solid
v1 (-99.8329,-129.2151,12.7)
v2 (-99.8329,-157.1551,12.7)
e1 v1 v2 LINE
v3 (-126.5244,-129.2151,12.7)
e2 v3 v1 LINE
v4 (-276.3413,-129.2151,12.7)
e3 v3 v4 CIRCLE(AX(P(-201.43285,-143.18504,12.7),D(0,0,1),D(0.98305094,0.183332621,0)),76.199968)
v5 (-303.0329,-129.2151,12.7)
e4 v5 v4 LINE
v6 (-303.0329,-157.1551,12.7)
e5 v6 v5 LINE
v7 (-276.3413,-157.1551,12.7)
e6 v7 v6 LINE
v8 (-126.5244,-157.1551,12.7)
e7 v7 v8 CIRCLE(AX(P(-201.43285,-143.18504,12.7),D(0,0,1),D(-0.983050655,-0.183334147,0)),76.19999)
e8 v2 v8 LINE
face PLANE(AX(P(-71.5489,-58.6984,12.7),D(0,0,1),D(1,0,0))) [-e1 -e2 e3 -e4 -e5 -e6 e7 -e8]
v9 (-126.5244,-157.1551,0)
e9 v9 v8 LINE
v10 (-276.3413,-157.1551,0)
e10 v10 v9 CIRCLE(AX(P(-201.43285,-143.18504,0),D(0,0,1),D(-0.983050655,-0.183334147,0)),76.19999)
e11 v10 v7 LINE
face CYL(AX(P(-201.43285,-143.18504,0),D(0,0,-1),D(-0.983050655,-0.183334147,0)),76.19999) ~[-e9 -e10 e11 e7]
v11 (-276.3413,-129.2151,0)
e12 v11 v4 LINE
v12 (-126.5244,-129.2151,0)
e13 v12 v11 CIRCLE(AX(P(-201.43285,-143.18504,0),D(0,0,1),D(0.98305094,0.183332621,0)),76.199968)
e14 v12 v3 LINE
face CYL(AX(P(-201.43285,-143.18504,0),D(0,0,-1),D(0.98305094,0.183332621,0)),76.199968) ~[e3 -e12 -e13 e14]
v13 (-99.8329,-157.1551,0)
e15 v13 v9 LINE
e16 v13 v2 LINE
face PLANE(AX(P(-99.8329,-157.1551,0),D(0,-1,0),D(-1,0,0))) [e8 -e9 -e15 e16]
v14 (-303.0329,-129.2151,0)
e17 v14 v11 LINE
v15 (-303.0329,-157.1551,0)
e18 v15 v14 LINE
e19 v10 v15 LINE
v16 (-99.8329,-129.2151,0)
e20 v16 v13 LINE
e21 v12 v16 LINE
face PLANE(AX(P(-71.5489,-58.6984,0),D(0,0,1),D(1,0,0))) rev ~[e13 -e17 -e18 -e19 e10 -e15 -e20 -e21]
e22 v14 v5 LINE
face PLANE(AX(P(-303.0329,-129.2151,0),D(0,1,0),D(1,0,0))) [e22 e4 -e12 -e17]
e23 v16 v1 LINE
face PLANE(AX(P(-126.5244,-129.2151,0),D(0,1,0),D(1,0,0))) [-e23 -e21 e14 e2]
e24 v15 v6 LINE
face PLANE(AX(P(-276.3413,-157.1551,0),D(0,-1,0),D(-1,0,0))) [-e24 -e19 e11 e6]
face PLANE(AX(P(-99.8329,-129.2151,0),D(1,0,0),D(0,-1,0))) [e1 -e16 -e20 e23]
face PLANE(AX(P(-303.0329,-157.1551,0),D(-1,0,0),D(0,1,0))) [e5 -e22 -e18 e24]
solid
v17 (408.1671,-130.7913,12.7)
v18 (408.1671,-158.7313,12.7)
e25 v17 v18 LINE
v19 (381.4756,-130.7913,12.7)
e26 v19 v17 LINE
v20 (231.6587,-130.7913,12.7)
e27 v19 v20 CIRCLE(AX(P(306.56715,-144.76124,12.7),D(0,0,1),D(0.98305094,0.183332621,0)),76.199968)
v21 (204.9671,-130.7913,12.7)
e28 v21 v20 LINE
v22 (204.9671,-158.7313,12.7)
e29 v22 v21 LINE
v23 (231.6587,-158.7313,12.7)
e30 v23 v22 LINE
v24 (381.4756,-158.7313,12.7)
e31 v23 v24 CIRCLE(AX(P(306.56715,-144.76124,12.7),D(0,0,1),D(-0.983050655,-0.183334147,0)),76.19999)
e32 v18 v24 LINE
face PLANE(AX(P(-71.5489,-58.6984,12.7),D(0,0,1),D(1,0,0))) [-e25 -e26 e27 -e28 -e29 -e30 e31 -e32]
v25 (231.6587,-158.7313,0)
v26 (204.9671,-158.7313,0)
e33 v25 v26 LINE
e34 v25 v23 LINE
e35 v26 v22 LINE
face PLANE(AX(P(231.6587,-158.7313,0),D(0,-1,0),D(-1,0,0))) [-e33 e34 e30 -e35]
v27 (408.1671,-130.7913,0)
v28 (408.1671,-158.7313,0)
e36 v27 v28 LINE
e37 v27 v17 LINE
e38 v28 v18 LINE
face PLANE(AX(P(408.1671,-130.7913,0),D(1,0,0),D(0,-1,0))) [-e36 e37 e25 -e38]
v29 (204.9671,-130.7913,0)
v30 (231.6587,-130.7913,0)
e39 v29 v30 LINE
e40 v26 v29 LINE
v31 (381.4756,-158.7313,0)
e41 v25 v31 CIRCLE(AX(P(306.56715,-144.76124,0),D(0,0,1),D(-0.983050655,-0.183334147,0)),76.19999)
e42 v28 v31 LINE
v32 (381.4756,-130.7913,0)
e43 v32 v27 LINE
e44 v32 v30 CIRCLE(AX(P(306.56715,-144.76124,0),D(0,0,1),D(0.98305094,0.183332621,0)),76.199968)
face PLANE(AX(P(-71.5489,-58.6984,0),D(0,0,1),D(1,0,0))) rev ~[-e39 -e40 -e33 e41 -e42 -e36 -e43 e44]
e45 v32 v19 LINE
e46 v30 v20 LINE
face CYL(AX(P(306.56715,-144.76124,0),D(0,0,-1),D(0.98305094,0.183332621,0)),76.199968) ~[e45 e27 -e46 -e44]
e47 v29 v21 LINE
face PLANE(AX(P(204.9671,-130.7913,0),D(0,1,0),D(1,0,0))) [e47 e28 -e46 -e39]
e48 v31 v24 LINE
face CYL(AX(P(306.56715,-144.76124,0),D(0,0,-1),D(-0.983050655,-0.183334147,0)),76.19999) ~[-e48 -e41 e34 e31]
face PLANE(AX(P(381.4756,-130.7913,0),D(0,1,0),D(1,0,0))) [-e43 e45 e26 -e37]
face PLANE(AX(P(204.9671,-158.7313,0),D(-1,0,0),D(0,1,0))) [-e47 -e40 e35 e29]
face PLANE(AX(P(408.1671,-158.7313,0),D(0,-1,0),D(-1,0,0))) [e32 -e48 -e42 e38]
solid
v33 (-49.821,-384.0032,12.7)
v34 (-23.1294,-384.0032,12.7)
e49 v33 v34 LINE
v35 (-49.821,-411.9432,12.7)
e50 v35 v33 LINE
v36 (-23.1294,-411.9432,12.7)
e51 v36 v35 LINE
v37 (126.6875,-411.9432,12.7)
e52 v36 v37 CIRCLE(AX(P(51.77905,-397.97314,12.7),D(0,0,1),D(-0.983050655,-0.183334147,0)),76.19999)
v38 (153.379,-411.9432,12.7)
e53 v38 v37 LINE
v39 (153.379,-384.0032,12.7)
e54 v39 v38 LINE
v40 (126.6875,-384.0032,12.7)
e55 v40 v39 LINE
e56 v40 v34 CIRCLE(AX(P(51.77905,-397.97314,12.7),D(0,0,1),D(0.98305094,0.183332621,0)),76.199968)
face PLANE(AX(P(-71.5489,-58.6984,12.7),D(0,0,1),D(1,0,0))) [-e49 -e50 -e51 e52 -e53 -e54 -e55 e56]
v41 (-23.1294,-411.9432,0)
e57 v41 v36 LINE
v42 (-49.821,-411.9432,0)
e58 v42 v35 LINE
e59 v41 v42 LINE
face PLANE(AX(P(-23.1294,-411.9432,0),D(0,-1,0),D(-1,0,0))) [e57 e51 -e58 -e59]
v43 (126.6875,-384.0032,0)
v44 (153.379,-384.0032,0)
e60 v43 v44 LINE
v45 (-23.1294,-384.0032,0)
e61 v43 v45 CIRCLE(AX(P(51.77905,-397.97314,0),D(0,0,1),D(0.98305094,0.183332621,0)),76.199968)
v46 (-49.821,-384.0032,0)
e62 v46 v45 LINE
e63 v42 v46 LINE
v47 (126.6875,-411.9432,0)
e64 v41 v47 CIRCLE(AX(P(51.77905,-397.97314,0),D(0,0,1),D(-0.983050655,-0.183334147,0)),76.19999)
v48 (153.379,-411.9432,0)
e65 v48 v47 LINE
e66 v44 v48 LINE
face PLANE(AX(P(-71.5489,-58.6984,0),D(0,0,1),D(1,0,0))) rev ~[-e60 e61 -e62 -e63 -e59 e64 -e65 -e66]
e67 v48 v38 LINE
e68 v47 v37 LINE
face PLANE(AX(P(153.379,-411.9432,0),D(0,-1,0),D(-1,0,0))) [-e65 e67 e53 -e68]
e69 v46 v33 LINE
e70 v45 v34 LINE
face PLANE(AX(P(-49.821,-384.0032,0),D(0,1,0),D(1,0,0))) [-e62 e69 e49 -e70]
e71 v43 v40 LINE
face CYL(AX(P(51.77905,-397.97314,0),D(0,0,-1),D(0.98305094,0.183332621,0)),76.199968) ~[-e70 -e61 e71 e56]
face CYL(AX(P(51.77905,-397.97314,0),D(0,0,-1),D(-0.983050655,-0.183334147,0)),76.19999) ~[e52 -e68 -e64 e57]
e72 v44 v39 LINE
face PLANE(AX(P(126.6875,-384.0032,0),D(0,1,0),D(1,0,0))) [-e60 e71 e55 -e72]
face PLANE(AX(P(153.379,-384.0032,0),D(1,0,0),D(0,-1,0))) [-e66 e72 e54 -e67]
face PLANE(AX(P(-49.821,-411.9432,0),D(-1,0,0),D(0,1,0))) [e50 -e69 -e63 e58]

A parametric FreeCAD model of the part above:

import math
import FreeCAD as App
import Part
import Sketcher
Q = App.Units.Quantity

doc = App.newDocument("Part")
body = doc.addObject("PartDesign::Body", "Body")
body.AllowCompound = True

sketch1 = body.newObject("Sketcher::SketchObject", "Sketch")
sketch1.AttachmentSupport = (doc.getObject("XY_Plane"), [""])
sketch1.MapMode = "FlatFace"
sketch1.addGeometry([
    Part.LineSegment(App.Vector(408.1671, -130.7913, 0), App.Vector(381.4756, -130.7913, 0)),
    Part.ArcOfCircle(Part.Circle(App.Vector(306.5671, -144.7613, 0), App.Vector(0, 0, 1), 76.19993), math.radians(10.563974), math.radians(169.436013)),
    Part.LineSegment(App.Vector(231.6587, -130.7913, 0), App.Vector(204.9671, -130.7913, 0)),
    Part.LineSegment(App.Vector(204.9671, -130.7913, 0), App.Vector(204.9671, -158.7313, 0)),
    Part.LineSegment(App.Vector(204.9671, -158.7313, 0), App.Vector(231.6587, -158.7313, 0)),
    Part.ArcOfCircle(Part.Circle(App.Vector(306.5671, -144.7613, 0), App.Vector(0, 0, 1), 76.200028), math.radians(-169.436013), math.radians(-10.563974)),
    Part.LineSegment(App.Vector(381.4756, -158.7313, 0), App.Vector(408.1671, -158.7313, 0)),
    Part.LineSegment(App.Vector(408.1671, -158.7313, 0), App.Vector(408.1671, -130.7913, 0)),
    Part.LineSegment(App.Vector(153.379, -384.0032, 0), App.Vector(126.6875, -384.0032, 0)),
    Part.ArcOfCircle(Part.Circle(App.Vector(51.779, -397.9732, 0), App.Vector(0, 0, 1), 76.19993), math.radians(10.563974), math.radians(169.436013)),
    Part.LineSegment(App.Vector(-23.1294, -384.0032, 0), App.Vector(-49.821, -384.0032, 0)),
    Part.LineSegment(App.Vector(-49.821, -384.0032, 0), App.Vector(-49.821, -411.9432, 0)),
    Part.LineSegment(App.Vector(-49.821, -411.9432, 0), App.Vector(-23.1294, -411.9432, 0)),
    Part.ArcOfCircle(Part.Circle(App.Vector(51.779, -397.9732, 0), App.Vector(0, 0, 1), 76.200028), math.radians(-169.436013), math.radians(-10.563974)),
    Part.LineSegment(App.Vector(126.6875, -411.9432, 0), App.Vector(153.379, -411.9432, 0)),
    Part.LineSegment(App.Vector(153.379, -411.9432, 0), App.Vector(153.379, -384.0032, 0)),
    Part.LineSegment(App.Vector(-303.0329, -157.1551, 0), App.Vector(-276.3413, -157.1551, 0)),
    Part.ArcOfCircle(Part.Circle(App.Vector(-201.4329, -143.1851, 0), App.Vector(0, 0, 1), 76.200028), math.radians(-169.436013), math.radians(-10.563974)),
    Part.LineSegment(App.Vector(-126.5244, -157.1551, 0), App.Vector(-99.8329, -157.1551, 0)),
    Part.LineSegment(App.Vector(-99.8329, -157.1551, 0), App.Vector(-99.8329, -129.2151, 0)),
    Part.LineSegment(App.Vector(-99.8329, -129.2151, 0), App.Vector(-126.5244, -129.2151, 0)),
    Part.ArcOfCircle(Part.Circle(App.Vector(-201.4329, -143.1851, 0), App.Vector(0, 0, 1), 76.19993), math.radians(10.563974), math.radians(169.436013)),
    Part.LineSegment(App.Vector(-276.3413, -129.2151, 0), App.Vector(-303.0329, -129.2151, 0)),
    Part.LineSegment(App.Vector(-303.0329, -129.2151, 0), App.Vector(-303.0329, -157.1551, 0)),
], False)
sketch1.addConstraint([
    Sketcher.Constraint("Coincident", 0, 2, 1, 1),
    Sketcher.Constraint("Coincident", 1, 2, 2, 1),
    Sketcher.Constraint("Coincident", 2, 2, 3, 1),
    Sketcher.Constraint("Coincident", 3, 2, 4, 1),
    Sketcher.Constraint("Coincident", 4, 2, 5, 1),
    Sketcher.Constraint("Coincident", 5, 2, 6, 1),
    Sketcher.Constraint("Coincident", 6, 2, 7, 1),
    Sketcher.Constraint("Coincident", 7, 2, 0, 1),
    Sketcher.Constraint("Coincident", 8, 2, 9, 1),
    Sketcher.Constraint("Coincident", 9, 2, 10, 1),
    Sketcher.Constraint("Coincident", 10, 2, 11, 1),
    Sketcher.Constraint("Coincident", 11, 2, 12, 1),
    Sketcher.Constraint("Coincident", 12, 2, 13, 1),
    Sketcher.Constraint("Coincident", 13, 2, 14, 1),
    Sketcher.Constraint("Coincident", 14, 2, 15, 1),
    Sketcher.Constraint("Coincident", 15, 2, 8, 1),
    Sketcher.Constraint("Coincident", 16, 2, 17, 1),
    Sketcher.Constraint("Coincident", 17, 2, 18, 1),
    Sketcher.Constraint("Coincident", 18, 2, 19, 1),
    Sketcher.Constraint("Coincident", 19, 2, 20, 1),
    Sketcher.Constraint("Coincident", 20, 2, 21, 1),
    Sketcher.Constraint("Coincident", 21, 2, 22, 1),
    Sketcher.Constraint("Coincident", 22, 2, 23, 1),
    Sketcher.Constraint("Coincident", 23, 2, 16, 1),
    Sketcher.Constraint("Horizontal", 0),
    Sketcher.Constraint("Horizontal", 2),
    Sketcher.Constraint("Vertical", 3),
    Sketcher.Constraint("Horizontal", 4),
    Sketcher.Constraint("Horizontal", 6),
    Sketcher.Constraint("Vertical", 7),
    Sketcher.Constraint("Horizontal", 8),
    Sketcher.Constraint("Horizontal", 10),
    Sketcher.Constraint("Vertical", 11),
    Sketcher.Constraint("Horizontal", 12),
    Sketcher.Constraint("Horizontal", 14),
    Sketcher.Constraint("Vertical", 15),
    Sketcher.Constraint("Horizontal", 16),
    Sketcher.Constraint("Horizontal", 18),
    Sketcher.Constraint("Vertical", 19),
    Sketcher.Constraint("Horizontal", 20),
    Sketcher.Constraint("Horizontal", 22),
    Sketcher.Constraint("Vertical", 23),
    Sketcher.Constraint("Coincident", 5, 3, 1, 3),
    Sketcher.Constraint("Coincident", 13, 3, 9, 3),
    Sketcher.Constraint("Coincident", 21, 3, 17, 3),
    Sketcher.Constraint("Equal", 1, 5),
    Sketcher.Constraint("Equal", 5, 9),
    Sketcher.Constraint("Equal", 9, 13),
    Sketcher.Constraint("Equal", 13, 17),
    Sketcher.Constraint("Equal", 17, 21),
    Sketcher.Constraint("Horizontal", 0, 2, 1, 2),
    Sketcher.Constraint("Horizontal", 4, 2, 5, 2),
    Sketcher.Constraint("Horizontal", 8, 2, 9, 2),
    Sketcher.Constraint("Horizontal", 12, 2, 13, 2),
    Sketcher.Constraint("Horizontal", 16, 2, 17, 2),
    Sketcher.Constraint("Horizontal", 20, 2, 21, 2),
    Sketcher.Constraint("Vertical", 1, 2, 4, 2),
    Sketcher.Constraint("Vertical", 9, 2, 12, 2),
    Sketcher.Constraint("Vertical", 17, 2, 20, 2),
    Sketcher.Constraint("Equal", 0, 2),
    Sketcher.Constraint("Equal", 6, 8),
    Sketcher.Constraint("Equal", 8, 10),
    Sketcher.Constraint("Equal", 14, 16),
    Sketcher.Constraint("Equal", 16, 18),
    Sketcher.Constraint("Equal", 7, 11),
    Sketcher.Constraint("Equal", 15, 19),
    Sketcher.Constraint("Radius", 1, Q("3 in")),
    Sketcher.Constraint("DistanceY", 3, 2, 3, 1, Q("1.1 in")),
    Sketcher.Constraint("DistanceX", 17, 3, 1, 3, Q("20 in")),
    Sketcher.Constraint("DistanceX", 2, 2, 1, 3, Q("4 in")),
    Sketcher.Constraint("DistanceY", 17, 3, -1, 1, Q("5.6372 in")),
    Sketcher.Constraint("DistanceX", -1, 1, 8, 2, Q("4.9877 in")),
    Sketcher.Constraint("DistanceX", -1, 1, 1, 3, 306.567),
    Sketcher.Constraint("DistanceY", 1, 3, -1, 1, 144.7613),
    Sketcher.Constraint("DistanceY", 9, 3, -1, 1, 397.9732),
])
pad1 = body.newObject("PartDesign::Pad", "Pad")
pad1.Profile = sketch1
pad1.Length = Q("0.5 in")

doc.recompute()
